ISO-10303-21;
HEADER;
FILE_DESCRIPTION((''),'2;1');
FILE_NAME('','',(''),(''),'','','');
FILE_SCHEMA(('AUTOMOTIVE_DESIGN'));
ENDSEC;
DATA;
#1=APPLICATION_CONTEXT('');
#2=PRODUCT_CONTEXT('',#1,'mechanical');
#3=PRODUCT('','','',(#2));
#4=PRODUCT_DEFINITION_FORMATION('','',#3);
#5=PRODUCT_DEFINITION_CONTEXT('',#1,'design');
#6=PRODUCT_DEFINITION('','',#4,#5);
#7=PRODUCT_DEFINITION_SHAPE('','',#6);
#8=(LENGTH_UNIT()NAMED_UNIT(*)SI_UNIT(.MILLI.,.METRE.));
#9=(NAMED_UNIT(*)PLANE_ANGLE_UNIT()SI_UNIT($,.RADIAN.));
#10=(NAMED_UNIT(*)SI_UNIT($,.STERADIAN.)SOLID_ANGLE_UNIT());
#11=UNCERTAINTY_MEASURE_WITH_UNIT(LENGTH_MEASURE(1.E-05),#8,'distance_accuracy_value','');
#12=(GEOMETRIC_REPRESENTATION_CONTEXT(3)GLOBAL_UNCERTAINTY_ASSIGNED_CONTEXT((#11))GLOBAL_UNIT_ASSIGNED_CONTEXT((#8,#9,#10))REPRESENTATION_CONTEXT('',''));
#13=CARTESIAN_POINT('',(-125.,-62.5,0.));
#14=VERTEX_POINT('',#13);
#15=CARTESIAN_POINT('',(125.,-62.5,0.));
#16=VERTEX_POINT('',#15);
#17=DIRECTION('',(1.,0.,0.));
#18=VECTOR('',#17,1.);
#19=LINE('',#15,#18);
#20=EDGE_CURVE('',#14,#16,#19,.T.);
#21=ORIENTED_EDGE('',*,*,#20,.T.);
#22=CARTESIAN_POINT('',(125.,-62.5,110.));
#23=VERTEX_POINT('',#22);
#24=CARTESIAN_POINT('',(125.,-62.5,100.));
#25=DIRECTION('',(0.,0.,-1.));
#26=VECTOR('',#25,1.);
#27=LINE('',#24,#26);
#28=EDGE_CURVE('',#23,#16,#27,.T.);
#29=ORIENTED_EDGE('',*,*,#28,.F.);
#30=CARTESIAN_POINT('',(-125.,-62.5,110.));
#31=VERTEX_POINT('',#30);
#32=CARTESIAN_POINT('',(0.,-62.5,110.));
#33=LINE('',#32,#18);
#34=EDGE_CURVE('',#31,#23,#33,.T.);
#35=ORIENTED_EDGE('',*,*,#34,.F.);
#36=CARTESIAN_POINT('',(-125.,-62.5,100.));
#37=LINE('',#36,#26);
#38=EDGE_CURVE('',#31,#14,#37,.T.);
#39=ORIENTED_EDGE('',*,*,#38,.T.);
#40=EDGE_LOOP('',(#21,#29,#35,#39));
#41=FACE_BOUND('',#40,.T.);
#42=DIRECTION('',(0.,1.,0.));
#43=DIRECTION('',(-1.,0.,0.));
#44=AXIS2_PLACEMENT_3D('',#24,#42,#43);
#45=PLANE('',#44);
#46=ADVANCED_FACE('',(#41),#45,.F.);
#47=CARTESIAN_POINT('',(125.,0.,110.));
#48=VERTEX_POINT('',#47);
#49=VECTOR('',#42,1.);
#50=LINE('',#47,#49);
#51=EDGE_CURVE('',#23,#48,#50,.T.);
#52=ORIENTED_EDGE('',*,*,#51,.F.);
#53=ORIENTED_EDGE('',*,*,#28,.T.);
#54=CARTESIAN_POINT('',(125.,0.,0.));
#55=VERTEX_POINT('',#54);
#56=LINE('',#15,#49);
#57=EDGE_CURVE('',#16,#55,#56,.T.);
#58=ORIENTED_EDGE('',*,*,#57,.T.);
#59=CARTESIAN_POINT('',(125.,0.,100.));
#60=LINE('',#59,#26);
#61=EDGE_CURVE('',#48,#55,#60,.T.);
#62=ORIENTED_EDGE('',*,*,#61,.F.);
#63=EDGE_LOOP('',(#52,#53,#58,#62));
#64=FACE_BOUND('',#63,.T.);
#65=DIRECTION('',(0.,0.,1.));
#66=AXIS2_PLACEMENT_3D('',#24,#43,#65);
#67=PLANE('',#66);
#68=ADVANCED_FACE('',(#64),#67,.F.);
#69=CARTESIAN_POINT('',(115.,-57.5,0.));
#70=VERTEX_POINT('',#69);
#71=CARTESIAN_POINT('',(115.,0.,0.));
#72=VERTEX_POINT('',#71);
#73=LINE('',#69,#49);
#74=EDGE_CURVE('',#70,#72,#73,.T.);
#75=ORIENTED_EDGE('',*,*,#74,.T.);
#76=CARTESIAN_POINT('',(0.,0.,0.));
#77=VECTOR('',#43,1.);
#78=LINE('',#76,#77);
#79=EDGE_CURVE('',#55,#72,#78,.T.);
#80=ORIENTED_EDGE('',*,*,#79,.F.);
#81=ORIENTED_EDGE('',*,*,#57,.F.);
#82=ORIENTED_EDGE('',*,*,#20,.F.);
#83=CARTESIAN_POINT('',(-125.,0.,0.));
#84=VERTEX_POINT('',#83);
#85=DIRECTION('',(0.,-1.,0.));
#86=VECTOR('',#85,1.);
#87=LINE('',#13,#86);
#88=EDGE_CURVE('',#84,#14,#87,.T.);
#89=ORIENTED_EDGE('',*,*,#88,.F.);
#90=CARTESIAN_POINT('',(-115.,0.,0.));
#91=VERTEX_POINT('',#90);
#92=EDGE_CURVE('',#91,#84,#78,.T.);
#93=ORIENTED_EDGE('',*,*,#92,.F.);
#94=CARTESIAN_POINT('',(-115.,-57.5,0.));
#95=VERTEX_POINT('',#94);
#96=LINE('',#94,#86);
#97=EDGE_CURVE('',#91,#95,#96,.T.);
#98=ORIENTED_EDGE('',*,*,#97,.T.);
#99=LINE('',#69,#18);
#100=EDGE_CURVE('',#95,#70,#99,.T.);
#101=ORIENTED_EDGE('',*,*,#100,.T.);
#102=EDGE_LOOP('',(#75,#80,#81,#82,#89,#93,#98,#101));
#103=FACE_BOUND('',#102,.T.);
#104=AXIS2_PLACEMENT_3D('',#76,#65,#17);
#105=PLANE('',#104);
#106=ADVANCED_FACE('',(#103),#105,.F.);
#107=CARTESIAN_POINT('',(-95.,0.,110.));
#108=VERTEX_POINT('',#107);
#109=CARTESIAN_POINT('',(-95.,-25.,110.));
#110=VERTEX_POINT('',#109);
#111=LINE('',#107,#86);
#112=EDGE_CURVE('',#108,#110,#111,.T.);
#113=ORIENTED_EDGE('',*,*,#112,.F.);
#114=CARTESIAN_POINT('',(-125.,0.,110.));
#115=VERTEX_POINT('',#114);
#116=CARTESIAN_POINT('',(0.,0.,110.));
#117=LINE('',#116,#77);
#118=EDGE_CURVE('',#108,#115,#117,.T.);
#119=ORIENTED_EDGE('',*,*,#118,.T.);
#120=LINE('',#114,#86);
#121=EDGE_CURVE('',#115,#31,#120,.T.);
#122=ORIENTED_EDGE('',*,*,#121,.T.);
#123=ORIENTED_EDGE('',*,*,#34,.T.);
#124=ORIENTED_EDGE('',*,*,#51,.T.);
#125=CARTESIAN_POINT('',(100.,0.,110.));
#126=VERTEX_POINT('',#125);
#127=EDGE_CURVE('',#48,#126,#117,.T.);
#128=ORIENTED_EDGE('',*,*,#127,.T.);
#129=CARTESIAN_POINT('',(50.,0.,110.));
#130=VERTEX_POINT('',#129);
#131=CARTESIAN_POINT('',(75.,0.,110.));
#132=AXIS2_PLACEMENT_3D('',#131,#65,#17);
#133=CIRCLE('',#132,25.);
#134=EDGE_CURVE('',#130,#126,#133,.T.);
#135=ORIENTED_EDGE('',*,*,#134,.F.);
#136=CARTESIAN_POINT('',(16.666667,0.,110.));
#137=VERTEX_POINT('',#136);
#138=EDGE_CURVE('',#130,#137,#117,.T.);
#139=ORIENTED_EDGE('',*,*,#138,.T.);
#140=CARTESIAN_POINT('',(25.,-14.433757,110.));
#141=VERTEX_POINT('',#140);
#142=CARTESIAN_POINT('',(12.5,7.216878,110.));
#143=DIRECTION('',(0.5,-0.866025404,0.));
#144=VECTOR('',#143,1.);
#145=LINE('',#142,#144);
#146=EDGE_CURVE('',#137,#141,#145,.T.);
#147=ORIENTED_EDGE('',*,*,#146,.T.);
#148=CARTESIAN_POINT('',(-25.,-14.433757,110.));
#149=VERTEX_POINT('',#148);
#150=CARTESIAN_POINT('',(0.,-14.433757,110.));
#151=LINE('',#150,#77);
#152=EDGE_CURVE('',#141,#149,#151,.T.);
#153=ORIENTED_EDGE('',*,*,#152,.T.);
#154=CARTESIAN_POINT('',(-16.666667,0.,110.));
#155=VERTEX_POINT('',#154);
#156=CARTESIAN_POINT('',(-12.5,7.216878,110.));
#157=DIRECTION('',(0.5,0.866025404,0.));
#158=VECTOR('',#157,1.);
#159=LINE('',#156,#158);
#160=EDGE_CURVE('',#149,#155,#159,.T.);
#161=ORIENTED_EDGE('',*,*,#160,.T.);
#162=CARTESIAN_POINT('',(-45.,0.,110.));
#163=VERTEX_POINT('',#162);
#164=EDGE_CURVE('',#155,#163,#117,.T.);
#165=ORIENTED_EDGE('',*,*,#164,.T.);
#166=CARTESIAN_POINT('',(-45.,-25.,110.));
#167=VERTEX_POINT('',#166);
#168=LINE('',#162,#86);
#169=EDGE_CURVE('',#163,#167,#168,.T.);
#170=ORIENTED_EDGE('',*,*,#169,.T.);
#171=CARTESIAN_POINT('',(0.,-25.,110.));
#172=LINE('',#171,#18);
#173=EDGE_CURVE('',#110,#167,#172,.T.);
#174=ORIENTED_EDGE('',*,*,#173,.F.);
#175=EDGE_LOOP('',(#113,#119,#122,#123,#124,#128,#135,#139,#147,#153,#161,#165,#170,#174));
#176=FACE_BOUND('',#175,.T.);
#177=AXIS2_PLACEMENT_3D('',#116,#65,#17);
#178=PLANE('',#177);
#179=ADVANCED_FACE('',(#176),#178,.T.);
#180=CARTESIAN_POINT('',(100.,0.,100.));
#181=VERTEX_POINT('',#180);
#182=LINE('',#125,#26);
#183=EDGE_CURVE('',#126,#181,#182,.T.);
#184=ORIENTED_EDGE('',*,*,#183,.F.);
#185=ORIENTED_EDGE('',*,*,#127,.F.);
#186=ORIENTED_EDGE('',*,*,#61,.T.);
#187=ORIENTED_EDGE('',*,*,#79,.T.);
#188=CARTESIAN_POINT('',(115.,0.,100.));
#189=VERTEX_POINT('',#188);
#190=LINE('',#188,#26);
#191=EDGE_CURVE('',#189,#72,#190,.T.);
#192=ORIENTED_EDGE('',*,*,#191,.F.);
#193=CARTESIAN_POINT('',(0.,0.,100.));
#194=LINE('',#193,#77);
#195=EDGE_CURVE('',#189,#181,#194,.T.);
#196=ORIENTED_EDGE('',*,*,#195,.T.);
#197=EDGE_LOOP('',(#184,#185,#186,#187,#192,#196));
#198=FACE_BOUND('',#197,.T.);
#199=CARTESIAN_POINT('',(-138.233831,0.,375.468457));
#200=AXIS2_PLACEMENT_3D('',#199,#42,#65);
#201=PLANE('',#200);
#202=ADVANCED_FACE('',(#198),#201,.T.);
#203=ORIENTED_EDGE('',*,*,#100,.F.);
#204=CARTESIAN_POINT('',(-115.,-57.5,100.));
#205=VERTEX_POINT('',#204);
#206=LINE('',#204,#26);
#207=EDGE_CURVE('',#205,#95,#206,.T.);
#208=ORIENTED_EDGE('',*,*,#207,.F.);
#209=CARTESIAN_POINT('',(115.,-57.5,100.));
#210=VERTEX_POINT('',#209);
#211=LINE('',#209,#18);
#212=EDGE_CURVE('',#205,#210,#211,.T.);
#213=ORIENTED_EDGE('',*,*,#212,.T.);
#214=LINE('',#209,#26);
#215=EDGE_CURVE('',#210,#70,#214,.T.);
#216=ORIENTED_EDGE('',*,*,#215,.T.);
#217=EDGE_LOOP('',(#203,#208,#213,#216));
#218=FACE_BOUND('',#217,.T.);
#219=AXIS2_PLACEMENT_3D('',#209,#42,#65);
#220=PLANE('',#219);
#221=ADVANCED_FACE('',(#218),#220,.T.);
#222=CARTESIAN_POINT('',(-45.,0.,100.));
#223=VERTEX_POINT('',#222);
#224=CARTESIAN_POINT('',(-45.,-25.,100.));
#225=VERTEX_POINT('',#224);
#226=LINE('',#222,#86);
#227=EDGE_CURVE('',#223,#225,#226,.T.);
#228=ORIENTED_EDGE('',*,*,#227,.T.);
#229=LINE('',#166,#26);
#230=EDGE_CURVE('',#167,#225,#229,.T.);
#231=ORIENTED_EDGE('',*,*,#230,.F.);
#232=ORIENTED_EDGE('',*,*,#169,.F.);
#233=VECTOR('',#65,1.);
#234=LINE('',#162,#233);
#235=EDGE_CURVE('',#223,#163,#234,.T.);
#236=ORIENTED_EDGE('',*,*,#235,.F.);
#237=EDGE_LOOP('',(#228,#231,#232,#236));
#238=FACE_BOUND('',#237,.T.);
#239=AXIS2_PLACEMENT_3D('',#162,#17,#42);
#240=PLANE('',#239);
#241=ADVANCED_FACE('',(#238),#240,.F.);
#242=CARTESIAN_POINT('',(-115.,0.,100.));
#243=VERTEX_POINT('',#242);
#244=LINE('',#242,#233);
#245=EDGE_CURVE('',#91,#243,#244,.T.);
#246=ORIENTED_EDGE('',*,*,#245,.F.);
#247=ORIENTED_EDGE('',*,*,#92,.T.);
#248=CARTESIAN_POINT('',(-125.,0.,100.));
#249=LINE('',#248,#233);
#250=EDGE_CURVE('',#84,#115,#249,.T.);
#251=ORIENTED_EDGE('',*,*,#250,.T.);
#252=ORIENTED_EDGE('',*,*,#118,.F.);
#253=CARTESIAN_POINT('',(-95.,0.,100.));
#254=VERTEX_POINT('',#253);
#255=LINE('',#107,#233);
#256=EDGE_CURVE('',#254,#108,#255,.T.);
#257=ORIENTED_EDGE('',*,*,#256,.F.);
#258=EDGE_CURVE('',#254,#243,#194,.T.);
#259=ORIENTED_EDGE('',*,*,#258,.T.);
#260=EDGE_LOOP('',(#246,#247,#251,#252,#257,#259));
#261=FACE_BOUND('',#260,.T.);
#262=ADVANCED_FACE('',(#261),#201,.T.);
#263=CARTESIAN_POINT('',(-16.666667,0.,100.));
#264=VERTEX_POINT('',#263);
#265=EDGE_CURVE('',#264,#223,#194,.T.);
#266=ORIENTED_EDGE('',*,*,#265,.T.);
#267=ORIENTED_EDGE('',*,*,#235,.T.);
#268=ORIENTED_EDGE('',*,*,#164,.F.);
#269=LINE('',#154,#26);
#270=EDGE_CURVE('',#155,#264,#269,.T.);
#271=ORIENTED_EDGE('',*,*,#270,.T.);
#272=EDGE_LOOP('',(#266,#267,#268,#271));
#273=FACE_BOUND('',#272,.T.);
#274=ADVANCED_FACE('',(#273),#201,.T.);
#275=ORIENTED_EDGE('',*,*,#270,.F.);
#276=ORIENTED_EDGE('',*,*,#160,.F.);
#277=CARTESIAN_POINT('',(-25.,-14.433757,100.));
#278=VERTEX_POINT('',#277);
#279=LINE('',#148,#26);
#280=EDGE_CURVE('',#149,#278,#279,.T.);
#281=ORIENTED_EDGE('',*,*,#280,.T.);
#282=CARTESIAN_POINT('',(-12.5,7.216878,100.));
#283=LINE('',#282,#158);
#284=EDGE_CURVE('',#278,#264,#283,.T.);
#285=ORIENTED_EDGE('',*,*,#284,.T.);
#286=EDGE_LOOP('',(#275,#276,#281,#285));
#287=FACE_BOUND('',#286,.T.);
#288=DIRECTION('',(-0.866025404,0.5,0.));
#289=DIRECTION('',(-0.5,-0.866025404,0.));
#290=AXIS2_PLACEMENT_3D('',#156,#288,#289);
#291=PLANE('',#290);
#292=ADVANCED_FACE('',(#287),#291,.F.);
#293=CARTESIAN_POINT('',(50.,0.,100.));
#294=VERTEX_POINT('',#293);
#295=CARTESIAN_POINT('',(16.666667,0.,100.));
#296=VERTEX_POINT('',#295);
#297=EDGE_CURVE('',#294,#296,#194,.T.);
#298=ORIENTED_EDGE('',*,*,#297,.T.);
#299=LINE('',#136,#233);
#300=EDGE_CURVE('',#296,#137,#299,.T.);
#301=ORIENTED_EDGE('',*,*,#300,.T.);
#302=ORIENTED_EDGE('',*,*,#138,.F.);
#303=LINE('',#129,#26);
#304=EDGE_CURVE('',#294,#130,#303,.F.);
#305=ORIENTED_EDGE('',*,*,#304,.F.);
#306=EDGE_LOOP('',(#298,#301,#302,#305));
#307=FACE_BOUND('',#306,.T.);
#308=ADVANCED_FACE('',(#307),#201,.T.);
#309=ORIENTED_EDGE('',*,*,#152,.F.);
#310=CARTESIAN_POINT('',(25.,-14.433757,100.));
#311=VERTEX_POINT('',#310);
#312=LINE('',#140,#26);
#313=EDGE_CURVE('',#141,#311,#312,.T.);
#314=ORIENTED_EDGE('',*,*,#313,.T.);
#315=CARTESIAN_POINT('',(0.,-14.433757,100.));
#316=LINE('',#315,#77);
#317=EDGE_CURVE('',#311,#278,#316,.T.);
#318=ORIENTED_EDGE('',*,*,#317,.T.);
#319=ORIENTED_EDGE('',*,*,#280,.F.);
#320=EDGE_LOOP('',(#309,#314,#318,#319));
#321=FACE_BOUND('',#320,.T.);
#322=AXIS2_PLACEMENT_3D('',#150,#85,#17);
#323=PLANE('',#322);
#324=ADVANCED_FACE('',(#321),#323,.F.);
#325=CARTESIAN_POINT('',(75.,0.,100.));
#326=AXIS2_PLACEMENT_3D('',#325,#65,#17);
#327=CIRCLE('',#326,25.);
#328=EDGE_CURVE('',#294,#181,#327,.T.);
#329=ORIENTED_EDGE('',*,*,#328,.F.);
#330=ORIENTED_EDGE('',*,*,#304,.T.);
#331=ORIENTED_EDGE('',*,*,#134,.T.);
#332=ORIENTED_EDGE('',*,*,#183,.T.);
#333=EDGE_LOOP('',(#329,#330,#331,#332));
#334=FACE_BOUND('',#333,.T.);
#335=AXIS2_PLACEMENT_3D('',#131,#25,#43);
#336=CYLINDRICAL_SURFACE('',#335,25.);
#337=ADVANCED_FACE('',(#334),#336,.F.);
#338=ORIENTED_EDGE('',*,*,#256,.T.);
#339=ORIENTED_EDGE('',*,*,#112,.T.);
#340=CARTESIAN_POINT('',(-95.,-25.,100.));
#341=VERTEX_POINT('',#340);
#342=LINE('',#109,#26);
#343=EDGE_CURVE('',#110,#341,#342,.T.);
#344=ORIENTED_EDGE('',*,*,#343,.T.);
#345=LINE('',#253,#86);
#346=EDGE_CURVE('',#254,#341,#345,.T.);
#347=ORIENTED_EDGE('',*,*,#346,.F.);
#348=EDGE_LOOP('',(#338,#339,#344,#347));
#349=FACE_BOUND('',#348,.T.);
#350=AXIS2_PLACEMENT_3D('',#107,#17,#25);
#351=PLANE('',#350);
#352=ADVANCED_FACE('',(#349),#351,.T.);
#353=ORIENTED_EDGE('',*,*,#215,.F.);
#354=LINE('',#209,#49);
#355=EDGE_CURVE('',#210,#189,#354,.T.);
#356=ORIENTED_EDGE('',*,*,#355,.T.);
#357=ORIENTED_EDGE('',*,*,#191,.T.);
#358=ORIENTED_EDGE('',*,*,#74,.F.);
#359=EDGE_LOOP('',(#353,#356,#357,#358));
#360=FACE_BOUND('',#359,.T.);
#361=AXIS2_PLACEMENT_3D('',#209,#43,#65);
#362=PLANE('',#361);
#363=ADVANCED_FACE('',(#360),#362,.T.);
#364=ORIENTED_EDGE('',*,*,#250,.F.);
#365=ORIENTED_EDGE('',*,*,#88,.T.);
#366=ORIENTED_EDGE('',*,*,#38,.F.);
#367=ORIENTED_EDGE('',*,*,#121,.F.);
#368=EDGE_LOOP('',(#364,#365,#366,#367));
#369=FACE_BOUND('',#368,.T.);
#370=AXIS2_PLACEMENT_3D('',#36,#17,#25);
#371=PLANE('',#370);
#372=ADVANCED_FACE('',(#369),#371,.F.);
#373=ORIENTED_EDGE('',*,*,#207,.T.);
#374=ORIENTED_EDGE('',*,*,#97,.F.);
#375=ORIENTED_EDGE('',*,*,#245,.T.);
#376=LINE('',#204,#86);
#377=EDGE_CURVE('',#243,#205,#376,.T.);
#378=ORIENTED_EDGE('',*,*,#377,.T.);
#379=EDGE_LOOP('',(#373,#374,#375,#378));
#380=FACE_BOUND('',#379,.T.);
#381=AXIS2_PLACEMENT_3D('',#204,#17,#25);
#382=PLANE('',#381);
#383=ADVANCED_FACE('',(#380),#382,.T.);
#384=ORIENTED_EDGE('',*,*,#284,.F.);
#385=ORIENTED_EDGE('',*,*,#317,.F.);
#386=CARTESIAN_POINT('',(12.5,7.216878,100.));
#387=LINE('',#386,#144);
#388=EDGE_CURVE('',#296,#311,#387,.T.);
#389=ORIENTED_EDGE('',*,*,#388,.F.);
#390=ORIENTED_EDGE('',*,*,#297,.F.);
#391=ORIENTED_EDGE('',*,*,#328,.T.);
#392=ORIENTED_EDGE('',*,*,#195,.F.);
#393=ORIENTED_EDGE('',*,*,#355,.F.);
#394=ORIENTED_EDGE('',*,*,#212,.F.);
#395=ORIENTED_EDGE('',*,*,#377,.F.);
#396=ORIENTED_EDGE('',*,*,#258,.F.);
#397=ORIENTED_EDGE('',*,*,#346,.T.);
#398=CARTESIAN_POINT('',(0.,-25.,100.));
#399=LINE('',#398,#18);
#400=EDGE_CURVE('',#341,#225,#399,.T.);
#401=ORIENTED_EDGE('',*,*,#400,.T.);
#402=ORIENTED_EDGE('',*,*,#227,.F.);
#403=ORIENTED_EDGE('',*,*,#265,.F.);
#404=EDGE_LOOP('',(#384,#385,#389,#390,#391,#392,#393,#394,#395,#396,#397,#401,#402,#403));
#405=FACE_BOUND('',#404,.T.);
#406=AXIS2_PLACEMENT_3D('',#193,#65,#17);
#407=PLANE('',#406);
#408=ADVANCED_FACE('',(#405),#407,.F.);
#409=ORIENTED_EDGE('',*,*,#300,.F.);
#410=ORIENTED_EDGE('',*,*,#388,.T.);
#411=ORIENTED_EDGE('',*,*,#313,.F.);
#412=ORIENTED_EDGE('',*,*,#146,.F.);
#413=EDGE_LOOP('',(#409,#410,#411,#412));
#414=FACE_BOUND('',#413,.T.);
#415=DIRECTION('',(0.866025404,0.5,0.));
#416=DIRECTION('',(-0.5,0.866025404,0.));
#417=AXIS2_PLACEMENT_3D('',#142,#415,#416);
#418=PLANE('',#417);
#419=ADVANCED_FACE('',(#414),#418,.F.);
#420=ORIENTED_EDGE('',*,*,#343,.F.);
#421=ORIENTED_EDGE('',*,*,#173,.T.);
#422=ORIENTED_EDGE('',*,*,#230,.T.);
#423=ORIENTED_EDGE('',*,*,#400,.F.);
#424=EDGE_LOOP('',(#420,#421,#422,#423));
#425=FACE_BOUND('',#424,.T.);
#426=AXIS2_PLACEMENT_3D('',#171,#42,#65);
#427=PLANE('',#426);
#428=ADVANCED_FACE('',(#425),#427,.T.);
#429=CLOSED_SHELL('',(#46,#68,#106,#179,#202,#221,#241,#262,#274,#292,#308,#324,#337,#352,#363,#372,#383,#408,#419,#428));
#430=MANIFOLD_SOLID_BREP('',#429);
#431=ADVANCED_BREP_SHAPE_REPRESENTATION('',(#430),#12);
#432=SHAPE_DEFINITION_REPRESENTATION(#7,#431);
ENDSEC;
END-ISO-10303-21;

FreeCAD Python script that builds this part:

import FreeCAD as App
import Part
import Sketcher

V = App.Vector
Q = App.Units.Quantity


def add_polygon(sketch, points):
    """Adds a closed chain of lines whose ends are joined by coincident constraints."""
    first, n = sketch.GeometryCount, len(points)
    for a, b in zip(points, points[1:] + points[:1]):
        sketch.addGeometry(Part.LineSegment(App.Vector(*a, 0), App.Vector(*b, 0)), False)
    for i in range(n):
        sketch.addConstraint(Sketcher.Constraint("Coincident", first + i, 2, first + (i + 1) % n, 1))

doc = App.newDocument("Part")
body = doc.addObject("PartDesign::Body", "Body")

sketch1 = body.newObject("Sketcher::SketchObject", "Sketch")
sketch1.AttachmentSupport = (doc.getObject("XY_Plane"), [""])
sketch1.MapMode = "FlatFace"
add_polygon(sketch1, [(-125, 62.5), (-125, -62.5), (125, -62.5), (125, 62.5)])
add_polygon(sketch1, [(115, -57.5), (-115, -57.5), (-115, 57.5), (115, 57.5)])
sketch1.addConstraint(Sketcher.Constraint("Vertical", 0))
sketch1.addConstraint(Sketcher.Constraint("Horizontal", 1))
sketch1.addConstraint(Sketcher.Constraint("Vertical", 2))
sketch1.addConstraint(Sketcher.Constraint("Horizontal", 3))
sketch1.addConstraint(Sketcher.Constraint("Horizontal", 4))
sketch1.addConstraint(Sketcher.Constraint("Vertical", 5))
sketch1.addConstraint(Sketcher.Constraint("Horizontal", 6))
sketch1.addConstraint(Sketcher.Constraint("Vertical", 7))
sketch1.addConstraint(Sketcher.Constraint("Symmetric", 0, 2, 2, 2, -1, 1))
sketch1.addConstraint(Sketcher.Constraint("Symmetric", 4, 2, 6, 2, -1, 1))
sketch1.addConstraint(Sketcher.Constraint("DistanceX", 1, 1, 1, 2, 250.0))
sketch1.addConstraint(Sketcher.Constraint("DistanceX", 4, 2, 4, 1, 230.0))
sketch1.addConstraint(Sketcher.Constraint("DistanceY", 0, 2, 0, 1, 125.0))
sketch1.addConstraint(Sketcher.Constraint("DistanceY", 5, 1, 5, 2, 115.0))
pad1 = body.newObject("PartDesign::Pad", "Pad")
pad1.Profile = sketch1
pad1.Length = 100

sketch2 = body.newObject("Sketcher::SketchObject", "Sketch001")
sketch2.AttachmentSupport = (doc.getObject("XY_Plane"), [""])
sketch2.MapMode = "FlatFace"
sketch2.AttachmentOffset = App.Placement(V(0, 0, 100), App.Rotation())
add_polygon(sketch2, [(-125, 62.5), (-125, -62.5), (125, -62.5), (125, 62.5)])
sketch2.addGeometry(Part.Circle(V(75, 0, 0), V(0, 0, 1), 25), False)
add_polygon(sketch2, [(0, 28.867513), (25, -14.433757), (-25, -14.433757)])
add_polygon(sketch2, [(-45, -25), (-95, -25), (-95, 25), (-45, 25)])
sketch2.addConstraint(Sketcher.Constraint("Vertical", 0))
sketch2.addConstraint(Sketcher.Constraint("Horizontal", 1))
sketch2.addConstraint(Sketcher.Constraint("Vertical", 2))
sketch2.addConstraint(Sketcher.Constraint("Horizontal", 3))
sketch2.addConstraint(Sketcher.Constraint("Horizontal", 6))
sketch2.addConstraint(Sketcher.Constraint("Horizontal", 8))
sketch2.addConstraint(Sketcher.Constraint("Vertical", 9))
sketch2.addConstraint(Sketcher.Constraint("Horizontal", 10))
sketch2.addConstraint(Sketcher.Constraint("Vertical", 11))
sketch2.addConstraint(Sketcher.Constraint("Symmetric", 0, 2, 2, 2, -1, 1))
sketch2.addConstraint(Sketcher.Constraint("PointOnObject", 4, 3, -1))
sketch2.addConstraint(Sketcher.Constraint("PointOnObject", 7, 2, -2))
sketch2.addConstraint(Sketcher.Constraint("Equal", 6, 8))
sketch2.addConstraint(Sketcher.Constraint("Equal", 10, 9))
sketch2.addConstraint(Sketcher.Constraint("Equal", 5, 7))
sketch2.addConstraint(Sketcher.Constraint("Diameter", 4, 50.0))
sketch2.addConstraint(Sketcher.Constraint("DistanceX", 1, 1, 1, 2, 250.0))
sketch2.addConstraint(Sketcher.Constraint("DistanceX", 6, 2, 6, 1, 50.0))
sketch2.addConstraint(Sketcher.Constraint("DistanceY", 0, 2, 0, 1, 125.0))
sketch2.addConstraint(Sketcher.Constraint("Angle", 5, Q("-60 deg")))
sketch2.addConstraint(Sketcher.Constraint("DistanceX", -1, 1, 4, 3, 75.0))
sketch2.addConstraint(Sketcher.Constraint("DistanceX", 8, 2, -1, 1, 95.0))
sketch2.addConstraint(Sketcher.Constraint("DistanceY", 8, 2, -1, 1, 25.0))
sketch2.addConstraint(Sketcher.Constraint("DistanceY", 5, 2, -1, 1, 14.433757))
pad2 = body.newObject("PartDesign::Pad", "Pad001")
pad2.Profile = sketch2
pad2.Length = 10

sketch3 = body.newObject("Sketcher::SketchObject", "Sketch002")
sketch3.AttachmentSupport = (doc.getObject("XY_Plane"), [""])
sketch3.MapMode = "FlatFace"
add_polygon(sketch3, [(-709.844548, 0), (720.37229, 0), (720.37229, 1143.221433), (-709.844548, 1143.221433)])
sketch3.addConstraint(Sketcher.Constraint("Horizontal", 0))
sketch3.addConstraint(Sketcher.Constraint("Vertical", 1))
sketch3.addConstraint(Sketcher.Constraint("Horizontal", 2))
sketch3.addConstraint(Sketcher.Constraint("Vertical", 3))
sketch3.addConstraint(Sketcher.Constraint("PointOnObject", 0, 2, -1))
sketch3.addConstraint(Sketcher.Constraint("DistanceX", 0, 1, 0, 2, 1430.216838))
sketch3.addConstraint(Sketcher.Constraint("DistanceY", 1, 1, 1, 2, 1143.221433))
sketch3.addConstraint(Sketcher.Constraint("DistanceX", -1, 1, 0, 2, 720.37229))
pocket1 = body.newObject("PartDesign::Pocket", "Pocket")
pocket1.Profile = sketch3
pocket1.Type = "ThroughAll"
pocket1.Midplane = True

doc.recompute()
